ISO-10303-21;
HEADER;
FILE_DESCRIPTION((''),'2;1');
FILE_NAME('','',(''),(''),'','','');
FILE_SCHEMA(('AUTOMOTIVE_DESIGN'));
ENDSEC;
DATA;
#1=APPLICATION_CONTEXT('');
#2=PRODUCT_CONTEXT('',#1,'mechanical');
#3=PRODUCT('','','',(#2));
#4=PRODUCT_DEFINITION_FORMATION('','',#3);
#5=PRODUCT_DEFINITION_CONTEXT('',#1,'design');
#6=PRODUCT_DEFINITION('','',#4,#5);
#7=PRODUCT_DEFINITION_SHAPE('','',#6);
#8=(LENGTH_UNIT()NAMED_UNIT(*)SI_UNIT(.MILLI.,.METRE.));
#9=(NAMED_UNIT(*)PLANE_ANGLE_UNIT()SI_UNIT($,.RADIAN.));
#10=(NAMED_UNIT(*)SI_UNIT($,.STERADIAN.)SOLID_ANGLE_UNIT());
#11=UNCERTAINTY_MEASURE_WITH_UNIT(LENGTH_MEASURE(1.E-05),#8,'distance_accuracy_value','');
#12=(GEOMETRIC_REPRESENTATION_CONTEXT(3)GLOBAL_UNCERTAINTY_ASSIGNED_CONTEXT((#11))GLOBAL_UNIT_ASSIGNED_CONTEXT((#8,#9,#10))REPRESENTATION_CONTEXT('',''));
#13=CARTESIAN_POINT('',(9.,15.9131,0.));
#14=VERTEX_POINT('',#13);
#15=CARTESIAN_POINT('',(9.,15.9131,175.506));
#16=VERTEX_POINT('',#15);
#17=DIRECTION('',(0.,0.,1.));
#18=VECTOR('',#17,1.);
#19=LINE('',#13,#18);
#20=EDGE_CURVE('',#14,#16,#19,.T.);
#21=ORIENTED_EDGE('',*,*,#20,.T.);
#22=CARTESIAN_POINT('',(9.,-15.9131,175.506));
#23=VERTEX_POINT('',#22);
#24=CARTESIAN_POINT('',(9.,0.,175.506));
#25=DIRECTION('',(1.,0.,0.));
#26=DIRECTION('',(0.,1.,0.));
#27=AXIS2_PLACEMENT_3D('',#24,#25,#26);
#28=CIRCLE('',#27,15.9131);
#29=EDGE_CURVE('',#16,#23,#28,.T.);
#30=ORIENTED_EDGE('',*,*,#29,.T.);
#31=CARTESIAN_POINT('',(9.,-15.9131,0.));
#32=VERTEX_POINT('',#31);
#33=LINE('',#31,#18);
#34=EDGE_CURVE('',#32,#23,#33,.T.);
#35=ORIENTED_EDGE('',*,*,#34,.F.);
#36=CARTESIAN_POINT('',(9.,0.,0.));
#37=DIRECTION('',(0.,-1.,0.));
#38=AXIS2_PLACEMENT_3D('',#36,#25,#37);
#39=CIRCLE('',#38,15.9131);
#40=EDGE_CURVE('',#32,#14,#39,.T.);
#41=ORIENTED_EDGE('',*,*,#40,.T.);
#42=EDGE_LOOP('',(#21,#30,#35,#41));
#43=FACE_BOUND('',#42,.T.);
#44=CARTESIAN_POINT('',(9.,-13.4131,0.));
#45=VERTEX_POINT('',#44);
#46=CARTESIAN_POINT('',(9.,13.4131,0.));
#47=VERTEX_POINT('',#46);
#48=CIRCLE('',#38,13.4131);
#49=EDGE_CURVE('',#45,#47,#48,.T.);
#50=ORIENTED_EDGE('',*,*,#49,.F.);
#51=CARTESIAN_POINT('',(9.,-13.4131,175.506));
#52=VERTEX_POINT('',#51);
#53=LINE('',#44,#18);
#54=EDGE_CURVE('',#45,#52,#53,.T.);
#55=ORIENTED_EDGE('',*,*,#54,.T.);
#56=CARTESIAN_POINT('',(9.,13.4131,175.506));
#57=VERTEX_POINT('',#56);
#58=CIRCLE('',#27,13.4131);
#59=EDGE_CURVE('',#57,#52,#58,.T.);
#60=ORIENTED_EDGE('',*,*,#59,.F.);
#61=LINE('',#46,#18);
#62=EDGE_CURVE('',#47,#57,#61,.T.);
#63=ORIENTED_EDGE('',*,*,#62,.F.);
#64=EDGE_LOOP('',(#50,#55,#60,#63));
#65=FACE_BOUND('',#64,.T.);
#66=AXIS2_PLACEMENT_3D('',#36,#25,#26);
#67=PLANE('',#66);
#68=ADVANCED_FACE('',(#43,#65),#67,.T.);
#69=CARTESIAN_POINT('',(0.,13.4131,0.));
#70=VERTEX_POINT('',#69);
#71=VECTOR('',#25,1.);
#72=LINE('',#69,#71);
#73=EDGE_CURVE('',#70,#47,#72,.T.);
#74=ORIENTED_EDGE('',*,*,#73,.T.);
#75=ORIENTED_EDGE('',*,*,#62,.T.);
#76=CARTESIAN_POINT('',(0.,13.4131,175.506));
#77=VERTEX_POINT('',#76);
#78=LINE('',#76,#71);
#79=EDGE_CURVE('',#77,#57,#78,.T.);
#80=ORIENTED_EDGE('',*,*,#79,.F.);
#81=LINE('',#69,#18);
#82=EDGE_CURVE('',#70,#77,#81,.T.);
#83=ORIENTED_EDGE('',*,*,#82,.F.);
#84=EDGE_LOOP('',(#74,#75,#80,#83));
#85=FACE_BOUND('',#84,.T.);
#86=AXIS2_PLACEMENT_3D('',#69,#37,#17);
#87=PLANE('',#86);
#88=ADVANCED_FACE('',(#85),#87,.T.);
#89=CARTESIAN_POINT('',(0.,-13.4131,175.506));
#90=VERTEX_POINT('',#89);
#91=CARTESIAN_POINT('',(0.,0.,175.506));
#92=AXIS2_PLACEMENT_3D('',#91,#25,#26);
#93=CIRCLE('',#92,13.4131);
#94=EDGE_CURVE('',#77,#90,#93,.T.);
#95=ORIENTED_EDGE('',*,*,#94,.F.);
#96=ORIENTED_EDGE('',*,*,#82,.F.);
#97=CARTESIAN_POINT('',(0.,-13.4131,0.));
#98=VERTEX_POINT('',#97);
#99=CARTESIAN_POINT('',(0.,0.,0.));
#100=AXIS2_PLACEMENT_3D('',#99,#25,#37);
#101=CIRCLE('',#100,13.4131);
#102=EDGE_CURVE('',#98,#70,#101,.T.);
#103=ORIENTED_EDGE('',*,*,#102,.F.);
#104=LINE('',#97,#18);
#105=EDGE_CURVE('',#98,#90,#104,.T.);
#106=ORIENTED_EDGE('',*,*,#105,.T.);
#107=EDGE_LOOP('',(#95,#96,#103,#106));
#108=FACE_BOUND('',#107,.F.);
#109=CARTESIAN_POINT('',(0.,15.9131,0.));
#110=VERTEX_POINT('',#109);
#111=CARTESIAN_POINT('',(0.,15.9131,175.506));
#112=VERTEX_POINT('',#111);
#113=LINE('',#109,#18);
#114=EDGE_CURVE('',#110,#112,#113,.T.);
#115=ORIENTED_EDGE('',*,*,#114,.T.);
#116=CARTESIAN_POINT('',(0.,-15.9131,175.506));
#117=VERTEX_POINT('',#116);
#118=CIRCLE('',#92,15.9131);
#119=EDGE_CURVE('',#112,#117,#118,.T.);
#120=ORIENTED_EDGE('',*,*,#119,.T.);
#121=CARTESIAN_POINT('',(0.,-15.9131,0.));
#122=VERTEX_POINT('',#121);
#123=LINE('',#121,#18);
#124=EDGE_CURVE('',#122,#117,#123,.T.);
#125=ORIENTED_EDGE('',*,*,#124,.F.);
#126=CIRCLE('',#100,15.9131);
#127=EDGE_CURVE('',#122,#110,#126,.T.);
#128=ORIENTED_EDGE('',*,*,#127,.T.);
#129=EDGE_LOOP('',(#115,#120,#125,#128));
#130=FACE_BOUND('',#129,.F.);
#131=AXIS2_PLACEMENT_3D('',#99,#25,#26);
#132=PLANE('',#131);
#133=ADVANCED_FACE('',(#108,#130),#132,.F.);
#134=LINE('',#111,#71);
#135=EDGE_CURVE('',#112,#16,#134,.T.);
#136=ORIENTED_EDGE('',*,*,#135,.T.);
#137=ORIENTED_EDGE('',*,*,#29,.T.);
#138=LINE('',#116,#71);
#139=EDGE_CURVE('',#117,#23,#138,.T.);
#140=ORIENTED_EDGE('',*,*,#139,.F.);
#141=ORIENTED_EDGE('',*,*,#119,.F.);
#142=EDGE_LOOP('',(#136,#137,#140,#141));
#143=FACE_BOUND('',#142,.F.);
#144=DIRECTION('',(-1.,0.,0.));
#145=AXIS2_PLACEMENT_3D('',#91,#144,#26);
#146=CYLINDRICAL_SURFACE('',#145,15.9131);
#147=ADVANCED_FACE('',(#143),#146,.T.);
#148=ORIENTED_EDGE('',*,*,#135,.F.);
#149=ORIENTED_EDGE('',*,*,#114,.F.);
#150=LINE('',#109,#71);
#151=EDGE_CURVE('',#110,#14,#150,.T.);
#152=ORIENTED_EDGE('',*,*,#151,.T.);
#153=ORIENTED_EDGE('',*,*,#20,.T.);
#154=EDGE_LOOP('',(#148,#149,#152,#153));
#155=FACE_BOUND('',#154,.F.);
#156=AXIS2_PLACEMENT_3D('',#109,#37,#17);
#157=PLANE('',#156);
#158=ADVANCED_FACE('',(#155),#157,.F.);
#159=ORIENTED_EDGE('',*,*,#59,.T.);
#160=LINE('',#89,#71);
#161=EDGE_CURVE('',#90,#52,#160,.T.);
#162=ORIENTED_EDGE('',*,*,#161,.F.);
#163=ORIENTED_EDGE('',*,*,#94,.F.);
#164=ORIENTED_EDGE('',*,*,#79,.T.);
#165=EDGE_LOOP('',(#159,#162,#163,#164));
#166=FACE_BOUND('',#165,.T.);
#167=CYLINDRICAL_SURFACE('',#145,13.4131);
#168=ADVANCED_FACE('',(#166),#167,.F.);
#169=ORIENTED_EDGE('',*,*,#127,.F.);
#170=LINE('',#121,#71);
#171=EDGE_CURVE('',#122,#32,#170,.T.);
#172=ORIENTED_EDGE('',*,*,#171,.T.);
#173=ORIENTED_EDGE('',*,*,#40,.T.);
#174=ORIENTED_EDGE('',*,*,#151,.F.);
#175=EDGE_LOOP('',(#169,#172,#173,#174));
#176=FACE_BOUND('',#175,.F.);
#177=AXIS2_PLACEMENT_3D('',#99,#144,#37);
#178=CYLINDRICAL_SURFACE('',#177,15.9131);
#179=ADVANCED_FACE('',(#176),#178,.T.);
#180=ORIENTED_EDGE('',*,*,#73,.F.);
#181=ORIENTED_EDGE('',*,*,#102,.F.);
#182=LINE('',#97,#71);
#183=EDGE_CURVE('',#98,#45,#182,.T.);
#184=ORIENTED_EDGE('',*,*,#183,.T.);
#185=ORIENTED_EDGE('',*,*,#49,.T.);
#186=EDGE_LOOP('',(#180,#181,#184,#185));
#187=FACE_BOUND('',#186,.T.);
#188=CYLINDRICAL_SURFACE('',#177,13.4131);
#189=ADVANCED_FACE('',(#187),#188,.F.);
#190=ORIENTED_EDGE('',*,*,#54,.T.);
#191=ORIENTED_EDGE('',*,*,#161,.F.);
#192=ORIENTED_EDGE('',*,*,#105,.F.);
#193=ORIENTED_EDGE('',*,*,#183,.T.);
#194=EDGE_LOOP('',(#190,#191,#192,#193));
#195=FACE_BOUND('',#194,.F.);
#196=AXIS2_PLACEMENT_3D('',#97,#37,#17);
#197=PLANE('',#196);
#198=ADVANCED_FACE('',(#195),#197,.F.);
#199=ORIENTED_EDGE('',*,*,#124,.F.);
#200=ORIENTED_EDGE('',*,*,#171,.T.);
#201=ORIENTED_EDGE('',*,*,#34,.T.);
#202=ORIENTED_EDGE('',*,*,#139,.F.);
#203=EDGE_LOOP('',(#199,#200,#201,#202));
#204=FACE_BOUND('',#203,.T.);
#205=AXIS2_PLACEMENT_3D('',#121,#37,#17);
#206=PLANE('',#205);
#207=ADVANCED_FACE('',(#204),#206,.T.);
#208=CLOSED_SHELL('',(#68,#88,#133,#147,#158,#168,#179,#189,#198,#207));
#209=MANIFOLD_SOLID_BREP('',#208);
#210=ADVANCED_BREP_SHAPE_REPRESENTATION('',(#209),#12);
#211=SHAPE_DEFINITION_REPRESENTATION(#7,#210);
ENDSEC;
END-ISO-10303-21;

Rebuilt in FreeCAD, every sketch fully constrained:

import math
import FreeCAD as App
import Part
import Sketcher

V = App.Vector

doc = App.newDocument("Part")
body = doc.addObject("PartDesign::Body", "Body")

# Sketch on YZ plane
sketch1 = body.newObject("Sketcher::SketchObject", "Sketch")
sketch1.AttachmentSupport = (doc.getObject("YZ_Plane"), [""])
sketch1.MapMode = "FlatFace"
sketch1.addGeometry(Part.LineSegment(V(-15.9131, 175.506, 0), V(-15.9131, 0, 0)), False)
sketch1.addGeometry(Part.ArcOfCircle(Part.Circle(V(0, 0, 0), V(0, 0, 1), 15.9131), math.radians(180), math.radians(360)), False)
sketch1.addGeometry(Part.LineSegment(V(15.9131, 0, 0), V(15.9131, 175.506, 0)), False)
sketch1.addGeometry(Part.ArcOfCircle(Part.Circle(V(0, 175.506, 0), V(0, 0, 1), 15.9131), math.radians(0), math.radians(180)), False)
sketch1.addGeometry(Part.ArcOfCircle(Part.Circle(V(0, 0, 0), V(0, 0, 1), 13.4131), math.radians(180), math.radians(360)), False)
sketch1.addGeometry(Part.LineSegment(V(-13.4131, 0, 0), V(-13.4131, 175.506, 0)), False)
sketch1.addGeometry(Part.ArcOfCircle(Part.Circle(V(0, 175.506, 0), V(0, 0, 1), 13.4131), math.radians(0), math.radians(180)), False)
sketch1.addGeometry(Part.LineSegment(V(13.4131, 175.506, 0), V(13.4131, 0, 0)), False)
sketch1.addConstraint(Sketcher.Constraint("Tangent", 0, 2, 1, 1))
sketch1.addConstraint(Sketcher.Constraint("Tangent", 1, 2, 2, 1))
sketch1.addConstraint(Sketcher.Constraint("Tangent", 2, 2, 3, 1))
sketch1.addConstraint(Sketcher.Constraint("Tangent", 3, 2, 0, 1))
sketch1.addConstraint(Sketcher.Constraint("Tangent", 4, 1, 5, 1))
sketch1.addConstraint(Sketcher.Constraint("Tangent", 5, 2, 6, 2))
sketch1.addConstraint(Sketcher.Constraint("Tangent", 6, 1, 7, 1))
sketch1.addConstraint(Sketcher.Constraint("Tangent", 7, 2, 4, 2))
sketch1.addConstraint(Sketcher.Constraint("Vertical", 0))
sketch1.addConstraint(Sketcher.Constraint("Vertical", 2))
sketch1.addConstraint(Sketcher.Constraint("Vertical", 5))
sketch1.addConstraint(Sketcher.Constraint("Vertical", 7))
sketch1.addConstraint(Sketcher.Constraint("Coincident", 1, 3, -1, 1))
sketch1.addConstraint(Sketcher.Constraint("Coincident", 4, 3, -1, 1))
sketch1.addConstraint(Sketcher.Constraint("Horizontal", 6, 3, 2, 2))
sketch1.addConstraint(Sketcher.Constraint("Radius", 4, 13.413))
sketch1.addConstraint(Sketcher.Constraint("DistanceX", 0, 2, 4, 1, 2.5))
sketch1.addConstraint(Sketcher.Constraint("DistanceY", 0, 2, 0, 1, 175.506))
pad1 = body.newObject("PartDesign::Pad", "Pad")
pad1.Profile = sketch1
pad1.Length = 9

doc.recompute()
